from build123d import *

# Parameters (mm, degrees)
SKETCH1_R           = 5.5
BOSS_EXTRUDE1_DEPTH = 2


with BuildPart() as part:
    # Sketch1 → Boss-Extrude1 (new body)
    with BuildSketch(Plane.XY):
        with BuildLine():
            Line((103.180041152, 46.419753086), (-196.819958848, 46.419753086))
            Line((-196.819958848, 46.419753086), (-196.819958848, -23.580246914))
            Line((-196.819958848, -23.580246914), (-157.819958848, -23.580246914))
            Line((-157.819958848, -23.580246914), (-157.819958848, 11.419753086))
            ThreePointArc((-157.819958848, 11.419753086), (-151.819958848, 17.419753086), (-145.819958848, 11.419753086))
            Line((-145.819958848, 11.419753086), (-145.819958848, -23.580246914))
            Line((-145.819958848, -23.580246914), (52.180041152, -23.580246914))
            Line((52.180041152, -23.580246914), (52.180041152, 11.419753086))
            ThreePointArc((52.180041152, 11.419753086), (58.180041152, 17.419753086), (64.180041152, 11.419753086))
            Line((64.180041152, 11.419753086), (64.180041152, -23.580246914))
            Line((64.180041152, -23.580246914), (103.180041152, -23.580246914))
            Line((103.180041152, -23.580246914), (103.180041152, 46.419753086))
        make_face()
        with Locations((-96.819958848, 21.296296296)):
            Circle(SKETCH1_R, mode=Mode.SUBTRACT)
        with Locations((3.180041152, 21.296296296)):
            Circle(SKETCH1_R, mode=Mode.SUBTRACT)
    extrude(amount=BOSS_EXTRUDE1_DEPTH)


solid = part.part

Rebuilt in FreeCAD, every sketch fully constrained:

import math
import FreeCAD as App
import Part
import Sketcher

V = App.Vector

doc = App.newDocument("Part")
body = doc.addObject("PartDesign::Body", "Body")

sketch1 = body.newObject("Sketcher::SketchObject", "Sketch")
sketch1.AttachmentSupport = (doc.getObject("XY_Plane"), [""])
sketch1.MapMode = "FlatFace"
sketch1.addGeometry([
    Part.LineSegment(V(103.180041, 46.419753, 0), V(-196.819959, 46.419753, 0)),
    Part.LineSegment(V(-196.819959, 46.419753, 0), V(-196.819959, -23.580247, 0)),
    Part.LineSegment(V(-196.819959, -23.580247, 0), V(-157.819959, -23.580247, 0)),
    Part.LineSegment(V(-157.819959, -23.580247, 0), V(-157.819959, 11.419753, 0)),
    Part.ArcOfCircle(Part.Circle(V(-151.819959, 11.419753, 0), V(0, 0, 1), 6), math.radians(0), math.radians(180)),
    Part.LineSegment(V(-145.819959, 11.419753, 0), V(-145.819959, -23.580247, 0)),
    Part.LineSegment(V(-145.819959, -23.580247, 0), V(52.180041, -23.580247, 0)),
    Part.LineSegment(V(52.180041, -23.580247, 0), V(52.180041, 11.419753, 0)),
    Part.ArcOfCircle(Part.Circle(V(58.180041, 11.419753, 0), V(0, 0, 1), 6), math.radians(0), math.radians(180)),
    Part.LineSegment(V(64.180041, 11.419753, 0), V(64.180041, -23.580247, 0)),
    Part.LineSegment(V(64.180041, -23.580247, 0), V(103.180041, -23.580247, 0)),
    Part.LineSegment(V(103.180041, -23.580247, 0), V(103.180041, 46.419753, 0)),
    Part.Circle(V(-96.819959, 21.296296, 0), V(0, 0, 1), 5.5),
    Part.Circle(V(3.180041, 21.296296, 0), V(0, 0, 1), 5.5),
], False)
sketch1.addConstraint([
    Sketcher.Constraint("Coincident", 0, 2, 1, 1),
    Sketcher.Constraint("Coincident", 1, 2, 2, 1),
    Sketcher.Constraint("Coincident", 2, 2, 3, 1),
    Sketcher.Constraint("Tangent", 3, 2, 4, 2),
    Sketcher.Constraint("Tangent", 4, 1, 5, 1),
    Sketcher.Constraint("Coincident", 5, 2, 6, 1),
    Sketcher.Constraint("Coincident", 6, 2, 7, 1),
    Sketcher.Constraint("Tangent", 7, 2, 8, 2),
    Sketcher.Constraint("Tangent", 8, 1, 9, 1),
    Sketcher.Constraint("Coincident", 9, 2, 10, 1),
    Sketcher.Constraint("Coincident", 10, 2, 11, 1),
    Sketcher.Constraint("Coincident", 11, 2, 0, 1),
    Sketcher.Constraint("Horizontal", 0),
    Sketcher.Constraint("Vertical", 1),
    Sketcher.Constraint("Horizontal", 2),
    Sketcher.Constraint("Vertical", 3),
    Sketcher.Constraint("Vertical", 5),
    Sketcher.Constraint("Horizontal", 6),
    Sketcher.Constraint("Vertical", 7),
    Sketcher.Constraint("Vertical", 9),
    Sketcher.Constraint("Horizontal", 10),
    Sketcher.Constraint("Vertical", 11),
    Sketcher.Constraint("Equal", 4, 8),
    Sketcher.Constraint("Equal", 12, 13),
    Sketcher.Constraint("Horizontal", 4, 3, 8, 3),
    Sketcher.Constraint("Horizontal", 12, 3, 13, 3),
    Sketcher.Constraint("Horizontal", 2, 2, 5, 2),
    Sketcher.Constraint("Horizontal", 6, 2, 9, 2),
    Sketcher.Constraint("Equal", 2, 10),
    Sketcher.Constraint("Diameter", 12, 11.0),
    Sketcher.Constraint("Radius", 4, 6.0),
    Sketcher.Constraint("DistanceX", 0, 2, 0, 1, 300.0),
    Sketcher.Constraint("DistanceX", 2, 1, 2, 2, 39.0),
    Sketcher.Constraint("DistanceY", 1, 2, 1, 1, 70.0),
    Sketcher.Constraint("DistanceY", 3, 1, 3, 2, 35.0),
    Sketcher.Constraint("DistanceX", 4, 3, 12, 3, 55.0),
    Sketcher.Constraint("DistanceX", 13, 3, 8, 3, 55.0),
    Sketcher.Constraint("DistanceX", 4, 3, -1, 1, 151.819959),
    Sketcher.Constraint("DistanceY", -1, 1, 4, 3, 11.419753),
    Sketcher.Constraint("DistanceY", -1, 1, 12, 3, 21.296296),
])
pad1 = body.newObject("PartDesign::Pad", "Pad")
pad1.Profile = sketch1
pad1.Length = 2

doc.recompute()
